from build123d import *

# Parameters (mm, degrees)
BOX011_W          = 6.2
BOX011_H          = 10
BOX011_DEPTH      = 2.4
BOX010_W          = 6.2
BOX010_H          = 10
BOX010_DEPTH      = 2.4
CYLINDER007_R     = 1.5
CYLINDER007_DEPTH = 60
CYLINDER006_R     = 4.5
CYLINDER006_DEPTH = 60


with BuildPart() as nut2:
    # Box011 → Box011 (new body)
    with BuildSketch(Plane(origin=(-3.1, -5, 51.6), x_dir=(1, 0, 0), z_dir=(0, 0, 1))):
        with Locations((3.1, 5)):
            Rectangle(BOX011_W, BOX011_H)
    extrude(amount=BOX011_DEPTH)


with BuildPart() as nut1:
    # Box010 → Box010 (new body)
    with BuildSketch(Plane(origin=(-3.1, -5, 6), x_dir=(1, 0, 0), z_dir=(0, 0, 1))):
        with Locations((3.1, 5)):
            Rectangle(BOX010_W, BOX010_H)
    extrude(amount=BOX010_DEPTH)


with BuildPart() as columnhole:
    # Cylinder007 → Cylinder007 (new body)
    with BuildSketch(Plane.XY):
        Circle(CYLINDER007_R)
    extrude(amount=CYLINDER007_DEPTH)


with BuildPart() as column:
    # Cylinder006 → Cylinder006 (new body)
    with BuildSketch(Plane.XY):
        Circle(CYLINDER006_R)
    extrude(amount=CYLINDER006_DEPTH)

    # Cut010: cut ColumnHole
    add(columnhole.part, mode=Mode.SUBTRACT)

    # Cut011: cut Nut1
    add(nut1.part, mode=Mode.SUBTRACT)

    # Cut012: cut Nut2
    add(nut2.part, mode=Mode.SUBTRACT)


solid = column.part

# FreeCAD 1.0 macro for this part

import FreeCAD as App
import Part
import Sketcher

V = App.Vector


def add_polygon(sketch, points):
    """Adds a closed chain of lines whose ends are joined by coincident constraints."""
    first, n = sketch.GeometryCount, len(points)
    for a, b in zip(points, points[1:] + points[:1]):
        sketch.addGeometry(Part.LineSegment(App.Vector(*a, 0), App.Vector(*b, 0)), False)
    for i in range(n):
        sketch.addConstraint(Sketcher.Constraint("Coincident", first + i, 2, first + (i + 1) % n, 1))

doc = App.newDocument("Part")
body = doc.addObject("PartDesign::Body", "Body")

# Sketch on XY plane
sketch1 = body.newObject("Sketcher::SketchObject", "Sketch")
sketch1.AttachmentSupport = (doc.getObject("XY_Plane"), [""])
sketch1.MapMode = "FlatFace"
sketch1.AttachmentOffset = App.Placement(V(0, 0, 51.6), App.Rotation())
add_polygon(sketch1, [(-3, 5), (-3, -5), (3, -5), (3, 5)])  # lines 0-3
sketch1.addConstraint([
    Sketcher.Constraint("Vertical", 0),
    Sketcher.Constraint("Horizontal", 1),
    Sketcher.Constraint("Vertical", 2),
    Sketcher.Constraint("Horizontal", 3),
    Sketcher.Constraint("Symmetric", 0, 2, 2, 2, -1, 1),
    Sketcher.Constraint("DistanceY", 0, 2, 0, 1, 10.0),
    Sketcher.Constraint("DistanceX", 1, 1, 1, 2, 6.2),
])
pad1 = body.newObject("PartDesign::Pad", "Pad")
pad1.Profile = sketch1
pad1.Length = 2.4
body2 = doc.addObject("PartDesign::Body", "Body001")

# Sketch on XY plane
sketch2 = body2.newObject("Sketcher::SketchObject", "Sketch001")
sketch2.AttachmentSupport = (doc.getObject("XY_Plane001"), [""])
sketch2.MapMode = "FlatFace"
sketch2.AttachmentOffset = App.Placement(V(0, 0, 6), App.Rotation())
add_polygon(sketch2, [(-3, 5), (-3, -5), (3, -5), (3, 5)])  # lines 0-3
sketch2.addConstraint([
    Sketcher.Constraint("Vertical", 0),
    Sketcher.Constraint("Horizontal", 1),
    Sketcher.Constraint("Vertical", 2),
    Sketcher.Constraint("Horizontal", 3),
    Sketcher.Constraint("Symmetric", 0, 2, 2, 2, -1, 1),
    Sketcher.Constraint("DistanceY", 0, 2, 0, 1, 10.0),
    Sketcher.Constraint("DistanceX", 1, 1, 1, 2, 6.2),
])
pad2 = body2.newObject("PartDesign::Pad", "Pad001")
pad2.Profile = sketch2
pad2.Length = 2.4
body3 = doc.addObject("PartDesign::Body", "Body002")

# Sketch on XY plane
sketch3 = body3.newObject("Sketcher::SketchObject", "Sketch002")
sketch3.AttachmentSupport = (doc.getObject("XY_Plane002"), [""])
sketch3.MapMode = "FlatFace"
sketch3.addGeometry(Part.Circle(V(0, 0, 0), V(0, 0, 1), 1.5), False)
sketch3.addConstraint([
    Sketcher.Constraint("Coincident", 0, 3, -1, 1),
    Sketcher.Constraint("Diameter", 0, 3.0),
])
pad3 = body3.newObject("PartDesign::Pad", "Pad002")
pad3.Profile = sketch3
pad3.Length = 60
body4 = doc.addObject("PartDesign::Body", "Body003")

# Sketch on XY plane
sketch4 = body4.newObject("Sketcher::SketchObject", "Sketch003")
sketch4.AttachmentSupport = (doc.getObject("XY_Plane003"), [""])
sketch4.MapMode = "FlatFace"
sketch4.addGeometry(Part.Circle(V(0, 0, 0), V(0, 0, 1), 4.5), False)
sketch4.addConstraint([
    Sketcher.Constraint("Coincident", 0, 3, -1, 1),
    Sketcher.Constraint("Diameter", 0, 9.0),
])
pad4 = body4.newObject("PartDesign::Pad", "Pad003")
pad4.Profile = sketch4
pad4.Length = 60
doc.recompute()

boolean = body4.newObject("PartDesign::Boolean", "Boolean")
boolean.Type = "Cut"
boolean.addObjects([body3])
doc.recompute()

boolean2 = body4.newObject("PartDesign::Boolean", "Boolean001")
boolean2.Type = "Cut"
boolean2.addObjects([body2])
doc.recompute()

boolean3 = body4.newObject("PartDesign::Boolean", "Boolean002")
boolean3.Type = "Cut"
boolean3.addObjects([body])

doc.recompute()
